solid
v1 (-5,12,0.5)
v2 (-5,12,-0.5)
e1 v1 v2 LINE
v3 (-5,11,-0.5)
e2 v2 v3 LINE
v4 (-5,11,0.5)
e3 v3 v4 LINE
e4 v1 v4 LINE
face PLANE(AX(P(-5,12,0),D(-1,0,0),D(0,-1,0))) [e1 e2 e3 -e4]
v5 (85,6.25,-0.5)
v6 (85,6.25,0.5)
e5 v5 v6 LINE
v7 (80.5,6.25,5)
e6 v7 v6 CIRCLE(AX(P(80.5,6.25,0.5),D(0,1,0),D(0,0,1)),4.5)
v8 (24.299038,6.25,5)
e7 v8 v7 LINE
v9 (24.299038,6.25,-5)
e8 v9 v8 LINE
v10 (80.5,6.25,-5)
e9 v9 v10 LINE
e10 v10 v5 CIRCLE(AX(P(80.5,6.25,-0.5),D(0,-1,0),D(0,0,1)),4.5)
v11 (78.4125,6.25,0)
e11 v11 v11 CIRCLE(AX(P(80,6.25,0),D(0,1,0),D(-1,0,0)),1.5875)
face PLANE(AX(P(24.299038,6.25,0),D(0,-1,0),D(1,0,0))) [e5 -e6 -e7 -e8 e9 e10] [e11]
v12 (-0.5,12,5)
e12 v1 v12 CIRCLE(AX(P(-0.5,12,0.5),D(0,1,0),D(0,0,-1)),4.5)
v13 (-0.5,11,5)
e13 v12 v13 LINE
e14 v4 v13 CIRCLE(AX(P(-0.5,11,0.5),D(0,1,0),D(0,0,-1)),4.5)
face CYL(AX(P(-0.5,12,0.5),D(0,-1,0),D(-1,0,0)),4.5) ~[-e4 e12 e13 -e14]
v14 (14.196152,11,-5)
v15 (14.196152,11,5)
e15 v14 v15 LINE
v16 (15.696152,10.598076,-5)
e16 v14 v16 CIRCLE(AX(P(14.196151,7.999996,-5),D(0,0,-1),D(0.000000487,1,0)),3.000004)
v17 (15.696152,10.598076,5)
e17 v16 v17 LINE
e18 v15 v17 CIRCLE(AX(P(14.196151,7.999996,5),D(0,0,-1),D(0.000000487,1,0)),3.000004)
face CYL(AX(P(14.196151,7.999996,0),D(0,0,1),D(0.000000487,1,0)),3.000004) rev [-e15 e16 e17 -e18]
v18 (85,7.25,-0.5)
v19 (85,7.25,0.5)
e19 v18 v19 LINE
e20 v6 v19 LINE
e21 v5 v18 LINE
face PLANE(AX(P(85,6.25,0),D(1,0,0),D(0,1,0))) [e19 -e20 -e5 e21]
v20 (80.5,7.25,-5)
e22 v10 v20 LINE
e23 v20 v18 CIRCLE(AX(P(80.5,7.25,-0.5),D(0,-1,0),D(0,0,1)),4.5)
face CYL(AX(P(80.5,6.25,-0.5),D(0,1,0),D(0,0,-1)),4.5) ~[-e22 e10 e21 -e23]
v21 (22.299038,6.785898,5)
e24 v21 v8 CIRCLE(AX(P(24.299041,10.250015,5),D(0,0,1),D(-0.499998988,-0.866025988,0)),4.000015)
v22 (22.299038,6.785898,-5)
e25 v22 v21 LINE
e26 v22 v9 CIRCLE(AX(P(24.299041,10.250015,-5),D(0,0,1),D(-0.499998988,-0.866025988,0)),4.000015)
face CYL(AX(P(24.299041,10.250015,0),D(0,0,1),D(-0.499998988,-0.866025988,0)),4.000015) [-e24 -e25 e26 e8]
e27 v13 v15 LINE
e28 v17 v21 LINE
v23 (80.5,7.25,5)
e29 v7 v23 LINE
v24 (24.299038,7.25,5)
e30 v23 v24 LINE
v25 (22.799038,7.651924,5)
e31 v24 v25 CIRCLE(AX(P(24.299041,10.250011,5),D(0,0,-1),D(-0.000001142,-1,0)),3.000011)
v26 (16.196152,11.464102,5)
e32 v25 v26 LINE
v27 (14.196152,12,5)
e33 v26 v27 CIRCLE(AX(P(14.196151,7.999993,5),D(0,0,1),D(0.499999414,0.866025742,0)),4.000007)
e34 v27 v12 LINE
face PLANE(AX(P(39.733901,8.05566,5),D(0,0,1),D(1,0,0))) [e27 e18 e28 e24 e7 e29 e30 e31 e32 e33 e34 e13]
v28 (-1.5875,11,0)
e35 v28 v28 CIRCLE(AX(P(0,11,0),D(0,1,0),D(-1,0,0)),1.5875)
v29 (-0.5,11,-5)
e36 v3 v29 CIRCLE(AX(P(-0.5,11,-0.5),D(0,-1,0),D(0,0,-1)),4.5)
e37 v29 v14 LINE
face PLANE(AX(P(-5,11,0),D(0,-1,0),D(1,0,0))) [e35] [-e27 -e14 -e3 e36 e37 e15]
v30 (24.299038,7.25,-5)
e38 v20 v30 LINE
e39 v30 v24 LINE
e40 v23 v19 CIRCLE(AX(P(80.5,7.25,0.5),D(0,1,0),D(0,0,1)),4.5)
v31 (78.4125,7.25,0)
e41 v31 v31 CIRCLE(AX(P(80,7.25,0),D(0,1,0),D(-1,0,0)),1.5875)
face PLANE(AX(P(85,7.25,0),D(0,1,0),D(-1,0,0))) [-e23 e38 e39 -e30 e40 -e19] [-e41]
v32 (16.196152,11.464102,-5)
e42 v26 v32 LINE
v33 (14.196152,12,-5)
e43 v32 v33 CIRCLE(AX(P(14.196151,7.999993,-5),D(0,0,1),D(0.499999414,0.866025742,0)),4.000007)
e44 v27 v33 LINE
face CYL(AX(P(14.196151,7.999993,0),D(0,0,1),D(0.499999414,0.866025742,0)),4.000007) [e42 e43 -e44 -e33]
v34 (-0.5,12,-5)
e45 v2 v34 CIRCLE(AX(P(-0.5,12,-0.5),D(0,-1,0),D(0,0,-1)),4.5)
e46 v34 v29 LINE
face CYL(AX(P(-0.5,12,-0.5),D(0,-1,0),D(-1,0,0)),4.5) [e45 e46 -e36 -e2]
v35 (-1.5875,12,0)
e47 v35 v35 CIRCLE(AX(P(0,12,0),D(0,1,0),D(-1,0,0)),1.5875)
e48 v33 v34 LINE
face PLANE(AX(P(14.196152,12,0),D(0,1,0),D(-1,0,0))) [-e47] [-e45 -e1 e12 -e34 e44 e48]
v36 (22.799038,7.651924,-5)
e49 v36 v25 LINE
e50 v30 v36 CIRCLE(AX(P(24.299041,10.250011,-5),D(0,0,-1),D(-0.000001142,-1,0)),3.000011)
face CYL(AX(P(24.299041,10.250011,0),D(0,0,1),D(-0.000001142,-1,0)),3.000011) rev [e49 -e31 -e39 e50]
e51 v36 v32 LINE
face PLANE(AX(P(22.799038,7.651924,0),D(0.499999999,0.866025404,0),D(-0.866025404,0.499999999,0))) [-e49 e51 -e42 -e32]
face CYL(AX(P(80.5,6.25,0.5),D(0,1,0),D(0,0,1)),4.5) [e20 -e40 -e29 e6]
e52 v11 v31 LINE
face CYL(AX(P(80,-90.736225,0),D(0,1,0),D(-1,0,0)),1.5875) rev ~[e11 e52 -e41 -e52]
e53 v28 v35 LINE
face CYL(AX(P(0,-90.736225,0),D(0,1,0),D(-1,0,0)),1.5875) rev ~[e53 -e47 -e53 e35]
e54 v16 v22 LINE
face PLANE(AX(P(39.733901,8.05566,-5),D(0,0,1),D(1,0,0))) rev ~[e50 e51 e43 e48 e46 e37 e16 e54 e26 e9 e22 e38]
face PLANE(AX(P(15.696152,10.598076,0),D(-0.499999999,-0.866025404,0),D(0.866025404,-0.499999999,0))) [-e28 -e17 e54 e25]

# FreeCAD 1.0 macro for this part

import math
import FreeCAD as App
import Part
import Sketcher
from FreeCAD import Vector
Q = App.Units.Quantity


def edges_at(feature, points):
    """Names of the edges that pass closest to the given points."""
    edges = feature.Shape.Edges
    near = lambda p: min(range(len(edges)), key=lambda i: edges[i].distToShape(Part.Vertex(*p))[0])
    return sorted({f"Edge{near(p) + 1}" for p in points})

doc = App.newDocument("Part")
body = doc.addObject("PartDesign::Body", "Body")

# Sketch on XY plane
sketch1 = doc.addObject("Sketcher::SketchObject", "Sketch")
body.addObject(sketch1)
sketch1.AttachmentSupport = (doc.XY_Plane, [""])
sketch1.MapMode = "FlatFace"
sketch1.addGeometry(Part.LineSegment(Vector(-5, 12, 0), Vector(-5, 11, 0)), False)
sketch1.addGeometry(Part.LineSegment(Vector(-5, 11, 0), Vector(14.2, 11, 0)), False)
sketch1.addGeometry(Part.ArcOfCircle(Part.Circle(Vector(14.2, 8, 0), Vector(0, 0, 1), 3), math.radians(60), math.radians(90)), False)
sketch1.addGeometry(Part.LineSegment(Vector(15.7, 10.6, 0), Vector(22.3, 6.8, 0)), False)
sketch1.addGeometry(Part.ArcOfCircle(Part.Circle(Vector(24.3, 10.3, 0), Vector(0, 0, 1), 4), math.radians(-120), math.radians(-90)), False)
sketch1.addGeometry(Part.LineSegment(Vector(24.3, 6.2, 0), Vector(85, 6.2, 0)), False)
sketch1.addGeometry(Part.LineSegment(Vector(85, 6.2, 0), Vector(85, 7.2, 0)), False)
sketch1.addGeometry(Part.LineSegment(Vector(85, 7.2, 0), Vector(24.3, 7.2, 0)), False)
sketch1.addGeometry(Part.ArcOfCircle(Part.Circle(Vector(24.3, 10.3, 0), Vector(0, 0, 1), 3), math.radians(-120), math.radians(-90)), False)
sketch1.addGeometry(Part.LineSegment(Vector(22.8, 7.7, 0), Vector(16.2, 11.5, 0)), False)
sketch1.addGeometry(Part.ArcOfCircle(Part.Circle(Vector(14.2, 8, 0), Vector(0, 0, 1), 4), math.radians(60), math.radians(90)), False)
sketch1.addGeometry(Part.LineSegment(Vector(14.2, 12, 0), Vector(-5, 12, 0)), False)
sketch1.addConstraint(Sketcher.Constraint("Coincident", 0, 2, 1, 1))
sketch1.addConstraint(Sketcher.Constraint("Tangent", 1, 2, 2, 2))
sketch1.addConstraint(Sketcher.Constraint("Tangent", 2, 1, 3, 1))
sketch1.addConstraint(Sketcher.Constraint("Tangent", 3, 2, 4, 1))
sketch1.addConstraint(Sketcher.Constraint("Tangent", 4, 2, 5, 1))
sketch1.addConstraint(Sketcher.Constraint("Coincident", 5, 2, 6, 1))
sketch1.addConstraint(Sketcher.Constraint("Coincident", 6, 2, 7, 1))
sketch1.addConstraint(Sketcher.Constraint("Tangent", 7, 2, 8, 2))
sketch1.addConstraint(Sketcher.Constraint("Tangent", 8, 1, 9, 1))
sketch1.addConstraint(Sketcher.Constraint("Tangent", 9, 2, 10, 1))
sketch1.addConstraint(Sketcher.Constraint("Tangent", 10, 2, 11, 1))
sketch1.addConstraint(Sketcher.Constraint("Coincident", 11, 2, 0, 1))
sketch1.addConstraint(Sketcher.Constraint("Vertical", 0))
sketch1.addConstraint(Sketcher.Constraint("Horizontal", 1))
sketch1.addConstraint(Sketcher.Constraint("Horizontal", 5))
sketch1.addConstraint(Sketcher.Constraint("Vertical", 6))
sketch1.addConstraint(Sketcher.Constraint("Horizontal", 7))
sketch1.addConstraint(Sketcher.Constraint("Horizontal", 11))
sketch1.addConstraint(Sketcher.Constraint("Coincident", 8, 3, 4, 3))
sketch1.addConstraint(Sketcher.Constraint("Coincident", 10, 3, 2, 3))
sketch1.addConstraint(Sketcher.Constraint("Parallel", 3, 9))
sketch1.addConstraint(Sketcher.Constraint("DistanceY", 0, 2, 0, 1, 1.0))
sketch1.addConstraint(Sketcher.Constraint("Angle", 3, Q("-30 deg")))
sketch1.addConstraint(Sketcher.Constraint("DistanceX", 0, 2, -1, 1, 5.0))
sketch1.addConstraint(Sketcher.Constraint("DistanceY", -1, 1, 0, 2, 11.0))
sketch1.addConstraint(Sketcher.Constraint("DistanceX", -1, 1, 5, 2, 85.0))
sketch1.addConstraint(Sketcher.Constraint("DistanceX", 3, 2, 4, 2, 2.0))
sketch1.addConstraint(Sketcher.Constraint("DistanceX", 1, 2, 9, 2, 2.0))
sketch1.addConstraint(Sketcher.Constraint("DistanceY", -1, 1, 4, 2, 6.25))
sketch1.addConstraint(Sketcher.Constraint("DistanceX", 1, 1, 1, 2, 19.196152))
pad1 = doc.addObject("PartDesign::Pad", "Pad")
body.addObject(pad1)
pad1.Profile = sketch1
pad1.Length = 10
pad1.Midplane = True

# Sketch on XZ plane
sketch2 = doc.addObject("Sketcher::SketchObject", "Sketch001")
body.addObject(sketch2)
sketch2.AttachmentSupport = (doc.XZ_Plane, [""])
sketch2.MapMode = "FlatFace"
sketch2.addGeometry(Part.Circle(Vector(0, 0, 0), Vector(0, 0, 1), 1.6), False)
sketch2.addGeometry(Part.Circle(Vector(80, 0, 0), Vector(0, 0, 1), 1.6), False)
sketch2.addConstraint(Sketcher.Constraint("Coincident", 0, 3, -1, 1))
sketch2.addConstraint(Sketcher.Constraint("Equal", 0, 1))
sketch2.addConstraint(Sketcher.Constraint("PointOnObject", 1, 3, -1))
sketch2.addConstraint(Sketcher.Constraint("Diameter", 0, 3.175))
sketch2.addConstraint(Sketcher.Constraint("DistanceX", -1, 1, 1, 3, 80.0))
doc.recompute()
hole = doc.addObject("PartDesign::Hole", "Hole")
body.addObject(hole)
hole.Profile = sketch2
hole.ThreadType = "None"
hole.Diameter = 3.175
hole.DepthType = "ThroughAll"
doc.recompute()

fillet = doc.addObject("PartDesign::Fillet", "Fillet")
body.addObject(fillet)
fillet.Base = (hole, edges_at(hole, [
    (85, 6.75, 5),
    (85, 6.75, -5),
    (-5, 11.5, 5),
    (-5, 11.5, -5),
]))
fillet.Radius = 4.5

doc.recompute()
